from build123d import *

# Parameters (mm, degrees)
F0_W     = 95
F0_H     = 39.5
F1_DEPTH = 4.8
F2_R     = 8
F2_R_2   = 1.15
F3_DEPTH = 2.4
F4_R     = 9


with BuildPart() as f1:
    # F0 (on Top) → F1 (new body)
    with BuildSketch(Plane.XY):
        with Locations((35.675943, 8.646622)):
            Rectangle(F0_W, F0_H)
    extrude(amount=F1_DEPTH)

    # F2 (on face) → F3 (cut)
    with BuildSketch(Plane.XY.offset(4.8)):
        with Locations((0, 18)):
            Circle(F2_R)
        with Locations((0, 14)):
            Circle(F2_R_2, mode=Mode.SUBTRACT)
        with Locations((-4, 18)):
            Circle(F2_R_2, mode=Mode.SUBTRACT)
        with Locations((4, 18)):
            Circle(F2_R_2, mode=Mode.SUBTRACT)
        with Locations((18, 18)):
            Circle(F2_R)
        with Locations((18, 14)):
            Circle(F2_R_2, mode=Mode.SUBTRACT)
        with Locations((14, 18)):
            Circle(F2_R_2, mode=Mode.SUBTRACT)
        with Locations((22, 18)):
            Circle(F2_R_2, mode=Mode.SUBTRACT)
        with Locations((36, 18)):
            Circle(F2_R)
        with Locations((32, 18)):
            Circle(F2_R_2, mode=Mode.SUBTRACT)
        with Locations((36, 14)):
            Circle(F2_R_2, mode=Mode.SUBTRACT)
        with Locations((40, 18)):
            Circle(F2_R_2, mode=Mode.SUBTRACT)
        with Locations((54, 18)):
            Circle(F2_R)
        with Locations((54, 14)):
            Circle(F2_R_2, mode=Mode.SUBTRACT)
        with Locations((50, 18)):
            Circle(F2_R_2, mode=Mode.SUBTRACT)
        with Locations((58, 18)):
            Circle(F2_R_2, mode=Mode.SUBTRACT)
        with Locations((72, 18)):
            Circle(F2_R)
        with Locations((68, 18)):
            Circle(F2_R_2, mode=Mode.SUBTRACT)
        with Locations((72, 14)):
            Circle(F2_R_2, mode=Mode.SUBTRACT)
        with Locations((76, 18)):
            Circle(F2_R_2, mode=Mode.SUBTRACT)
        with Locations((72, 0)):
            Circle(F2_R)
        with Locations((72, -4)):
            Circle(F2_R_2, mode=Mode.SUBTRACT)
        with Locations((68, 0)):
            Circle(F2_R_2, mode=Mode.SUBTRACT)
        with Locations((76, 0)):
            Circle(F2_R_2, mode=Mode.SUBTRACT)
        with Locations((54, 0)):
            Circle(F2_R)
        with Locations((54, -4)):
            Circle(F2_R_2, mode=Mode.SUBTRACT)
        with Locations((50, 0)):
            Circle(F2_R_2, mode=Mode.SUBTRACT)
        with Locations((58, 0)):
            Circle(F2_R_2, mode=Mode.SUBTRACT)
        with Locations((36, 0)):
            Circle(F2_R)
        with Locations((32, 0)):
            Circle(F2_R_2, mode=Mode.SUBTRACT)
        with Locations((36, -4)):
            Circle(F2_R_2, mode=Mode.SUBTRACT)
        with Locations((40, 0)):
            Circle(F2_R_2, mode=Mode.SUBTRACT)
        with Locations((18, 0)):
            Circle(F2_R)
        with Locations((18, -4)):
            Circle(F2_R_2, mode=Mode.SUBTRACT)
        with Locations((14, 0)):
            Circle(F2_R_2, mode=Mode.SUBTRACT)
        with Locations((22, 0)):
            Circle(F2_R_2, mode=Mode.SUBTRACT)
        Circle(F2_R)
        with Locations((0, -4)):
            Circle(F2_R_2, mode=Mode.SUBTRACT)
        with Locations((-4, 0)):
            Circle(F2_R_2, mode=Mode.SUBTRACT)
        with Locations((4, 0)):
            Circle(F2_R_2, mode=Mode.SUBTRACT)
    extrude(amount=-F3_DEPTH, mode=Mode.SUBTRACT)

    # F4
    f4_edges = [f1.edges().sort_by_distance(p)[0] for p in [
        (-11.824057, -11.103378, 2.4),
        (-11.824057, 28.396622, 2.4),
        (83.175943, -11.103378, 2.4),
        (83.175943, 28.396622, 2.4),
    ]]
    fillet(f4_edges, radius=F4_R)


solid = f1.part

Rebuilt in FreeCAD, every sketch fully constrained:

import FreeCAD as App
import Part
import Sketcher

V = App.Vector
Q = App.Units.Quantity


def edges_at(feature, points):
    """Names of the edges that pass closest to the given points."""
    edges = feature.Shape.Edges
    near = lambda p: min(range(len(edges)), key=lambda i: edges[i].distToShape(Part.Vertex(*p))[0])
    return sorted({f"Edge{near(p) + 1}" for p in points})


def add_polygon(sketch, points):
    """Adds a closed chain of lines whose ends are joined by coincident constraints."""
    first, n = sketch.GeometryCount, len(points)
    for a, b in zip(points, points[1:] + points[:1]):
        sketch.addGeometry(Part.LineSegment(App.Vector(*a, 0), App.Vector(*b, 0)), False)
    for i in range(n):
        sketch.addConstraint(Sketcher.Constraint("Coincident", first + i, 2, first + (i + 1) % n, 1))

doc = App.newDocument("Part")
body = doc.addObject("PartDesign::Body", "Body")

# Sketch on XY plane
sketch1 = body.newObject("Sketcher::SketchObject", "Sketch")
sketch1.AttachmentSupport = (doc.getObject("XY_Plane"), [""])
sketch1.MapMode = "FlatFace"
add_polygon(sketch1, [(-12, 28), (-12, -11), (83, -11), (83, 28)])  # lines 0-3
sketch1.addConstraint([
    Sketcher.Constraint("Vertical", 0),
    Sketcher.Constraint("Horizontal", 1),
    Sketcher.Constraint("Vertical", 2),
    Sketcher.Constraint("Horizontal", 3),
    Sketcher.Constraint("DistanceX", 1, 1, 1, 2, Q("95 mm")),
    Sketcher.Constraint("DistanceY", 0, 2, 0, 1, Q("39.5 mm")),
    Sketcher.Constraint("DistanceX", 0, 2, -1, 1, Q("11.824057 mm")),
    Sketcher.Constraint("DistanceY", 0, 2, -1, 1, Q("11.103378 mm")),
])
pad1 = body.newObject("PartDesign::Pad", "Pad")
pad1.Profile = sketch1
pad1.Length = 4.8

# Sketch on XY plane
sketch2 = body.newObject("Sketcher::SketchObject", "Sketch001")
sketch2.AttachmentSupport = (doc.getObject("XY_Plane"), [""])
sketch2.MapMode = "FlatFace"
sketch2.AttachmentOffset = App.Placement(V(0, 0, 4.8), App.Rotation())
sketch2.addGeometry([
    Part.Circle(V(0, 18, 0), V(0, 0, 1), 8),  # 0
    Part.Circle(V(0, 14, 0), V(0, 0, 1), 1.1),  # 1
    Part.Circle(V(-4, 18, 0), V(0, 0, 1), 1.1),  # 2
    Part.Circle(V(4, 18, 0), V(0, 0, 1), 1.1),  # 3
    Part.Circle(V(18, 18, 0), V(0, 0, 1), 8),  # 4
    Part.Circle(V(18, 14, 0), V(0, 0, 1), 1.1),  # 5
    Part.Circle(V(14, 18, 0), V(0, 0, 1), 1.1),  # 6
    Part.Circle(V(22, 18, 0), V(0, 0, 1), 1.1),  # 7
    Part.Circle(V(36, 18, 0), V(0, 0, 1), 8),  # 8
    Part.Circle(V(36, 14, 0), V(0, 0, 1), 1.1),  # 9
    Part.Circle(V(32, 18, 0), V(0, 0, 1), 1.1),  # 10
    Part.Circle(V(40, 18, 0), V(0, 0, 1), 1.1),  # 11
    Part.Circle(V(54, 18, 0), V(0, 0, 1), 8),  # 12
    Part.Circle(V(54, 14, 0), V(0, 0, 1), 1.1),  # 13
    Part.Circle(V(50, 18, 0), V(0, 0, 1), 1.1),  # 14
    Part.Circle(V(58, 18, 0), V(0, 0, 1), 1.1),  # 15
    Part.Circle(V(72, 18, 0), V(0, 0, 1), 8),  # 16
    Part.Circle(V(72, 14, 0), V(0, 0, 1), 1.1),  # 17
    Part.Circle(V(68, 18, 0), V(0, 0, 1), 1.1),  # 18
    Part.Circle(V(76, 18, 0), V(0, 0, 1), 1.1),  # 19
    Part.Circle(V(72, 0, 0), V(0, 0, 1), 8),  # 20
    Part.Circle(V(72, -4, 0), V(0, 0, 1), 1.1),  # 21
    Part.Circle(V(68, 0, 0), V(0, 0, 1), 1.1),  # 22
    Part.Circle(V(76, 0, 0), V(0, 0, 1), 1.1),  # 23
    Part.Circle(V(54, 0, 0), V(0, 0, 1), 8),  # 24
    Part.Circle(V(54, -4, 0), V(0, 0, 1), 1.1),  # 25
    Part.Circle(V(50, 0, 0), V(0, 0, 1), 1.1),  # 26
    Part.Circle(V(58, 0, 0), V(0, 0, 1), 1.1),  # 27
    Part.Circle(V(36, 0, 0), V(0, 0, 1), 8),  # 28
    Part.Circle(V(36, -4, 0), V(0, 0, 1), 1.1),  # 29
    Part.Circle(V(32, 0, 0), V(0, 0, 1), 1.1),  # 30
    Part.Circle(V(40, 0, 0), V(0, 0, 1), 1.1),  # 31
    Part.Circle(V(18, 0, 0), V(0, 0, 1), 8),  # 32
    Part.Circle(V(18, -4, 0), V(0, 0, 1), 1.1),  # 33
    Part.Circle(V(14, 0, 0), V(0, 0, 1), 1.1),  # 34
    Part.Circle(V(22, 0, 0), V(0, 0, 1), 1.1),  # 35
    Part.Circle(V(0, 0, 0), V(0, 0, 1), 8),  # 36
    Part.Circle(V(0, -4, 0), V(0, 0, 1), 1.1),  # 37
    Part.Circle(V(-4, 0, 0), V(0, 0, 1), 1.1),  # 38
    Part.Circle(V(4, 0, 0), V(0, 0, 1), 1.1),  # 39
], False)
sketch2.addConstraint([
    Sketcher.Constraint("Coincident", 36, 3, -1, 1),
    Sketcher.Constraint("Equal", 1, 2),
    Sketcher.Constraint("Equal", 2, 3),
    Sketcher.Constraint("Equal", 0, 4),
    Sketcher.Constraint("Equal", 3, 5),
    Sketcher.Constraint("Equal", 5, 6),
    Sketcher.Constraint("Equal", 6, 7),
    Sketcher.Constraint("Equal", 4, 8),
    Sketcher.Constraint("Equal", 7, 9),
    Sketcher.Constraint("Equal", 9, 10),
    Sketcher.Constraint("Equal", 10, 11),
    Sketcher.Constraint("Equal", 8, 12),
    Sketcher.Constraint("Equal", 11, 13),
    Sketcher.Constraint("Equal", 13, 14),
    Sketcher.Constraint("Equal", 14, 15),
    Sketcher.Constraint("Equal", 12, 16),
    Sketcher.Constraint("Equal", 15, 17),
    Sketcher.Constraint("Equal", 17, 18),
    Sketcher.Constraint("Equal", 18, 19),
    Sketcher.Constraint("Equal", 16, 20),
    Sketcher.Constraint("Equal", 19, 21),
    Sketcher.Constraint("Equal", 21, 22),
    Sketcher.Constraint("Equal", 22, 23),
    Sketcher.Constraint("Equal", 20, 24),
    Sketcher.Constraint("Equal", 23, 25),
    Sketcher.Constraint("Equal", 25, 26),
    Sketcher.Constraint("Equal", 26, 27),
    Sketcher.Constraint("Equal", 24, 28),
    Sketcher.Constraint("Equal", 27, 29),
    Sketcher.Constraint("Equal", 29, 30),
    Sketcher.Constraint("Equal", 30, 31),
    Sketcher.Constraint("Equal", 28, 32),
    Sketcher.Constraint("Equal", 31, 33),
    Sketcher.Constraint("Equal", 33, 34),
    Sketcher.Constraint("Equal", 34, 35),
    Sketcher.Constraint("Equal", 32, 36),
    Sketcher.Constraint("Equal", 35, 37),
    Sketcher.Constraint("Equal", 37, 38),
    Sketcher.Constraint("Equal", 38, 39),
    Sketcher.Constraint("Symmetric", 38, 3, 39, 3, -1, 1),
    Sketcher.Constraint("Symmetric", 2, 3, 3, 3, -2),
    Sketcher.Constraint("PointOnObject", 0, 3, -2),
    Sketcher.Constraint("PointOnObject", 1, 3, -2),
    Sketcher.Constraint("PointOnObject", 20, 3, -1),
    Sketcher.Constraint("PointOnObject", 22, 3, -1),
    Sketcher.Constraint("PointOnObject", 23, 3, -1),
    Sketcher.Constraint("PointOnObject", 24, 3, -1),
    Sketcher.Constraint("PointOnObject", 26, 3, -1),
    Sketcher.Constraint("PointOnObject", 27, 3, -1),
    Sketcher.Constraint("PointOnObject", 28, 3, -1),
    Sketcher.Constraint("PointOnObject", 30, 3, -1),
    Sketcher.Constraint("PointOnObject", 31, 3, -1),
    Sketcher.Constraint("PointOnObject", 32, 3, -1),
    Sketcher.Constraint("PointOnObject", 34, 3, -1),
    Sketcher.Constraint("PointOnObject", 35, 3, -1),
    Sketcher.Constraint("PointOnObject", 37, 3, -2),
    Sketcher.Constraint("PointOnObject", 38, 3, -1),
    Sketcher.Constraint("Horizontal", 0, 3, 2, 3),
    Sketcher.Constraint("Horizontal", 3, 3, 4, 3),
    Sketcher.Constraint("Horizontal", 1, 3, 5, 3),
    Sketcher.Constraint("Horizontal", 4, 3, 6, 3),
    Sketcher.Constraint("Horizontal", 6, 3, 7, 3),
    Sketcher.Constraint("Horizontal", 7, 3, 8, 3),
    Sketcher.Constraint("Horizontal", 5, 3, 9, 3),
    Sketcher.Constraint("Horizontal", 8, 3, 10, 3),
    Sketcher.Constraint("Horizontal", 10, 3, 11, 3),
    Sketcher.Constraint("Horizontal", 11, 3, 12, 3),
    Sketcher.Constraint("Horizontal", 9, 3, 13, 3),
    Sketcher.Constraint("Horizontal", 12, 3, 14, 3),
    Sketcher.Constraint("Horizontal", 14, 3, 15, 3),
    Sketcher.Constraint("Horizontal", 15, 3, 16, 3),
    Sketcher.Constraint("Horizontal", 13, 3, 17, 3),
    Sketcher.Constraint("Horizontal", 16, 3, 18, 3),
    Sketcher.Constraint("Horizontal", 18, 3, 19, 3),
    Sketcher.Constraint("Horizontal", 21, 3, 25, 3),
    Sketcher.Constraint("Horizontal", 25, 3, 29, 3),
    Sketcher.Constraint("Horizontal", 29, 3, 33, 3),
    Sketcher.Constraint("Horizontal", 33, 3, 37, 3),
    Sketcher.Constraint("Vertical", 4, 3, 5, 3),
    Sketcher.Constraint("Vertical", 8, 3, 9, 3),
    Sketcher.Constraint("Vertical", 12, 3, 13, 3),
    Sketcher.Constraint("Vertical", 16, 3, 17, 3),
    Sketcher.Constraint("Vertical", 17, 3, 20, 3),
    Sketcher.Constraint("Vertical", 20, 3, 21, 3),
    Sketcher.Constraint("Vertical", 18, 3, 22, 3),
    Sketcher.Constraint("Vertical", 19, 3, 23, 3),
    Sketcher.Constraint("Vertical", 13, 3, 24, 3),
    Sketcher.Constraint("Vertical", 24, 3, 25, 3),
    Sketcher.Constraint("Vertical", 14, 3, 26, 3),
    Sketcher.Constraint("Vertical", 15, 3, 27, 3),
    Sketcher.Constraint("Vertical", 9, 3, 28, 3),
    Sketcher.Constraint("Vertical", 28, 3, 29, 3),
    Sketcher.Constraint("Vertical", 10, 3, 30, 3),
    Sketcher.Constraint("Vertical", 11, 3, 31, 3),
    Sketcher.Constraint("Vertical", 5, 3, 32, 3),
    Sketcher.Constraint("Vertical", 32, 3, 33, 3),
    Sketcher.Constraint("Vertical", 6, 3, 34, 3),
    Sketcher.Constraint("Vertical", 7, 3, 35, 3),
    Sketcher.Constraint("Vertical", 2, 3, 38, 3),
    Sketcher.Constraint("Diameter", 0, Q("16 mm")),
    Sketcher.Constraint("Diameter", 1, Q("2.3 mm")),
    Sketcher.Constraint("DistanceY", -1, 1, 0, 3, Q("18 mm")),
    Sketcher.Constraint("DistanceY", -1, 1, 1, 3, Q("14 mm")),
    Sketcher.Constraint("DistanceX", 2, 3, -1, 1, Q("4 mm")),
    Sketcher.Constraint("DistanceX", -1, 1, 4, 3, Q("18 mm")),
    Sketcher.Constraint("DistanceX", -1, 1, 6, 3, Q("14 mm")),
    Sketcher.Constraint("DistanceX", -1, 1, 7, 3, Q("22 mm")),
    Sketcher.Constraint("DistanceX", -1, 1, 8, 3, Q("36 mm")),
    Sketcher.Constraint("DistanceX", -1, 1, 10, 3, Q("32 mm")),
    Sketcher.Constraint("DistanceX", -1, 1, 11, 3, Q("40 mm")),
    Sketcher.Constraint("DistanceX", -1, 1, 12, 3, Q("54 mm")),
    Sketcher.Constraint("DistanceX", -1, 1, 14, 3, Q("50 mm")),
    Sketcher.Constraint("DistanceX", -1, 1, 15, 3, Q("58 mm")),
    Sketcher.Constraint("DistanceX", -1, 1, 16, 3, Q("72 mm")),
    Sketcher.Constraint("DistanceX", -1, 1, 18, 3, Q("68 mm")),
    Sketcher.Constraint("DistanceX", -1, 1, 19, 3, Q("76 mm")),
    Sketcher.Constraint("DistanceY", 21, 3, -1, 1, Q("4 mm")),
])
pocket1 = body.newObject("PartDesign::Pocket", "Pocket")
pocket1.Profile = sketch2
pocket1.Length = 2.4
doc.recompute()

fillet = body.newObject("PartDesign::Fillet", "Fillet")
fillet.Base = (pocket1, edges_at(pocket1, [
    (-11.824, -11.103, 2.4),
    (-11.824, 28.397, 2.4),
    (83.176, -11.103, 2.4),
    (83.176, 28.397, 2.4),
]))
fillet.Radius = 9

doc.recompute()
